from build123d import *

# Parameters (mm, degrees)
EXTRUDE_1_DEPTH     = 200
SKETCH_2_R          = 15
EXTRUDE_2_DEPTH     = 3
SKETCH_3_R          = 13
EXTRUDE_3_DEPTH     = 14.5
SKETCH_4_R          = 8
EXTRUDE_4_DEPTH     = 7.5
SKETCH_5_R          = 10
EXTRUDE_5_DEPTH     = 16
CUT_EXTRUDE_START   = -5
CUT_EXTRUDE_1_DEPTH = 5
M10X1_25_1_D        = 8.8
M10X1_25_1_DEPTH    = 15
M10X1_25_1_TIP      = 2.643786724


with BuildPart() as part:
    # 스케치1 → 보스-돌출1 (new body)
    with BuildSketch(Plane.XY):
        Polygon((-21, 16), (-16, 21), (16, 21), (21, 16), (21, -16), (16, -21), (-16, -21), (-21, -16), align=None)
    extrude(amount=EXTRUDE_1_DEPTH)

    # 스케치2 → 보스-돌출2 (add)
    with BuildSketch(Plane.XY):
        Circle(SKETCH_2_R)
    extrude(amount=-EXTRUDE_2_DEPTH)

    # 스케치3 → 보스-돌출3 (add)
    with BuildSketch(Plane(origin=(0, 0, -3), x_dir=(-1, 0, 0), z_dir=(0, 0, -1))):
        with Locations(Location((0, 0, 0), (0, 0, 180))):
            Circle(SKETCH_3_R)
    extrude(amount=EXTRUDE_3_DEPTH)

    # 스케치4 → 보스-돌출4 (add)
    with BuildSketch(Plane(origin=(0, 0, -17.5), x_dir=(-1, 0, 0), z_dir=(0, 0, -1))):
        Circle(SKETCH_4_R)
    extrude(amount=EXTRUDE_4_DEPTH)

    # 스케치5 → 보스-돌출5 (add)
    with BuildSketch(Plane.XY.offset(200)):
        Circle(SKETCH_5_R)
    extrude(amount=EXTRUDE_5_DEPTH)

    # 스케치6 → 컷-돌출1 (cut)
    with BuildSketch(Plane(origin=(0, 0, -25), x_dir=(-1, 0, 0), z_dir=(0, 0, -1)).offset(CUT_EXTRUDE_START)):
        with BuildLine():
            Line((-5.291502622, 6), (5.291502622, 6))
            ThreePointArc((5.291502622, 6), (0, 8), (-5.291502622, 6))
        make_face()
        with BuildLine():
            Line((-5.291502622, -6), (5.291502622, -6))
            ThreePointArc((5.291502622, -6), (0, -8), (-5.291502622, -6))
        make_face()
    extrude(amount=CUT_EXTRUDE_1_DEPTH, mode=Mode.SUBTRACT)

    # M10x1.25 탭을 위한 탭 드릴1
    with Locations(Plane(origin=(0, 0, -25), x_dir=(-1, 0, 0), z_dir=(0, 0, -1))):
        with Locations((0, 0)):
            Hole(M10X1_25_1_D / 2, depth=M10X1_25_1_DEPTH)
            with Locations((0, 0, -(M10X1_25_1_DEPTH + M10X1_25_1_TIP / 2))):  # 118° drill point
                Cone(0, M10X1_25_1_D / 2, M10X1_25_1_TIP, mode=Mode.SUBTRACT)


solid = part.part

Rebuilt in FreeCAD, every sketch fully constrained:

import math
import FreeCAD as App
import Part
import Sketcher
from FreeCAD import Vector


def add_polygon(sketch, points):
    """Adds a closed chain of lines whose ends are joined by coincident constraints."""
    first, n = sketch.GeometryCount, len(points)
    for a, b in zip(points, points[1:] + points[:1]):
        sketch.addGeometry(Part.LineSegment(App.Vector(*a, 0), App.Vector(*b, 0)), False)
    for i in range(n):
        sketch.addConstraint(Sketcher.Constraint("Coincident", first + i, 2, first + (i + 1) % n, 1))

doc = App.newDocument("Part")
body = doc.addObject("PartDesign::Body", "Body")

# Sketch on XY plane
sketch1 = body.newObject("Sketcher::SketchObject", "Sketch")
sketch1.AttachmentSupport = (doc.getObject("XY_Plane"), [""])
sketch1.MapMode = "FlatFace"
add_polygon(sketch1, [(-16, 21), (-21, 16), (-21, -16), (-16, -21), (16, -21), (21, -16), (21, 16), (16, 21)])  # lines 0-7
sketch1.addConstraint([
    Sketcher.Constraint("Vertical", 1),
    Sketcher.Constraint("Horizontal", 3),
    Sketcher.Constraint("Vertical", 5),
    Sketcher.Constraint("Horizontal", 7),
    Sketcher.Constraint("Symmetric", 0, 2, 4, 2, -1, 1),
    Sketcher.Constraint("Symmetric", 2, 2, 6, 2, -1, 1),
    Sketcher.Constraint("Perpendicular", 0, 2),
    Sketcher.Constraint("Perpendicular", 2, 4),
    Sketcher.Constraint("Perpendicular", 4, 6),
    Sketcher.Constraint("Horizontal", 1, 2, 4, 2),
    Sketcher.Constraint("Vertical", 3, 2, 6, 2),
    Sketcher.Constraint("Equal", 7, 1),
    Sketcher.Constraint("DistanceX", 3, 1, 3, 2, 32.0),
    Sketcher.Constraint("DistanceX", 0, 2, -1, 1, 21.0),
])
pad1 = body.newObject("PartDesign::Pad", "Pad")
pad1.Profile = sketch1
pad1.Length = 200

# Sketch on XY plane
sketch2 = body.newObject("Sketcher::SketchObject", "Sketch001")
sketch2.AttachmentSupport = (doc.getObject("XY_Plane"), [""])
sketch2.MapMode = "FlatFace"
sketch2.addGeometry(Part.Circle(Vector(0, 0, 0), Vector(0, 0, 1), 15), False)
sketch2.addConstraint([
    Sketcher.Constraint("Coincident", 0, 3, -1, 1),
    Sketcher.Constraint("Diameter", 0, 30.0),
])
pad2 = body.newObject("PartDesign::Pad", "Pad001")
pad2.Profile = sketch2
pad2.Length = 3
pad2.Reversed = True

# Sketch on XY plane
sketch3 = body.newObject("Sketcher::SketchObject", "Sketch002")
sketch3.AttachmentSupport = (doc.getObject("XY_Plane"), [""])
sketch3.MapMode = "FlatFace"
sketch3.AttachmentOffset = App.Placement(Vector(0, 0, -3), App.Rotation())
sketch3.addGeometry(Part.Circle(Vector(0, 0, 0), Vector(0, 0, 1), 13), False)
sketch3.addConstraint([
    Sketcher.Constraint("Coincident", 0, 3, -1, 1),
    Sketcher.Constraint("Diameter", 0, 26.0),
])
pad3 = body.newObject("PartDesign::Pad", "Pad002")
pad3.Profile = sketch3
pad3.Length = 14.5
pad3.Reversed = True

# Sketch on XY plane
sketch4 = body.newObject("Sketcher::SketchObject", "Sketch003")
sketch4.AttachmentSupport = (doc.getObject("XY_Plane"), [""])
sketch4.MapMode = "FlatFace"
sketch4.AttachmentOffset = App.Placement(Vector(0, 0, -17.5), App.Rotation())
sketch4.addGeometry(Part.Circle(Vector(0, 0, 0), Vector(0, 0, 1), 8), False)
sketch4.addConstraint([
    Sketcher.Constraint("Coincident", 0, 3, -1, 1),
    Sketcher.Constraint("Diameter", 0, 16.0),
])
pad4 = body.newObject("PartDesign::Pad", "Pad003")
pad4.Profile = sketch4
pad4.Length = 7.5
pad4.Reversed = True

# Sketch on XY plane
sketch5 = body.newObject("Sketcher::SketchObject", "Sketch004")
sketch5.AttachmentSupport = (doc.getObject("XY_Plane"), [""])
sketch5.MapMode = "FlatFace"
sketch5.AttachmentOffset = App.Placement(Vector(0, 0, 200), App.Rotation())
sketch5.addGeometry(Part.Circle(Vector(0, 0, 0), Vector(0, 0, 1), 10), False)
sketch5.addConstraint([
    Sketcher.Constraint("Coincident", 0, 3, -1, 1),
    Sketcher.Constraint("Diameter", 0, 20.0),
])
pad5 = body.newObject("PartDesign::Pad", "Pad004")
pad5.Profile = sketch5
pad5.Length = 16

# Sketch on XY plane
sketch6 = body.newObject("Sketcher::SketchObject", "Sketch005")
sketch6.AttachmentSupport = (doc.getObject("XY_Plane"), [""])
sketch6.MapMode = "FlatFace"
sketch6.AttachmentOffset = App.Placement(Vector(0, 0, -20), App.Rotation())
sketch6.addGeometry([
    Part.LineSegment(Vector(5, 6, 0), Vector(-5, 6, 0)),
    Part.ArcOfCircle(Part.Circle(Vector(0, 0, 0), Vector(0, 0, 1), 8), math.radians(49), math.radians(131)),
    Part.LineSegment(Vector(-5, -6, 0), Vector(5, -6, 0)),
    Part.ArcOfCircle(Part.Circle(Vector(0, 0, 0), Vector(0, 0, 1), 8), math.radians(-131), math.radians(-49)),
], False)
sketch6.addConstraint([
    Sketcher.Constraint("Coincident", 0, 1, 1, 1),
    Sketcher.Constraint("Coincident", 1, 2, 0, 2),
    Sketcher.Constraint("Coincident", 2, 1, 3, 1),
    Sketcher.Constraint("Coincident", 3, 2, 2, 2),
    Sketcher.Constraint("Horizontal", 0),
    Sketcher.Constraint("Horizontal", 2),
    Sketcher.Constraint("Coincident", 1, 3, -1, 1),
    Sketcher.Constraint("Coincident", 3, 3, -1, 1),
    Sketcher.Constraint("Equal", 1, 3),
    Sketcher.Constraint("Vertical", 1, 2, 2, 1),
    Sketcher.Constraint("Radius", 1, 8.0),
    Sketcher.Constraint("DistanceY", -1, 1, 0, 1, 6.0),
])
pocket1 = body.newObject("PartDesign::Pocket", "Pocket")
pocket1.Profile = sketch6
pocket1.Length = 5

# Sketch on XY plane
sketch7 = body.newObject("Sketcher::SketchObject", "Sketch006")
sketch7.AttachmentSupport = (doc.getObject("XY_Plane"), [""])
sketch7.MapMode = "FlatFace"
sketch7.AttachmentOffset = App.Placement(Vector(0, 0, -25), App.Rotation())
sketch7.addGeometry(Part.Circle(Vector(0, 0, 0), Vector(0, 0, 1), 4.4), False)
sketch7.addConstraint([
    Sketcher.Constraint("Coincident", 0, 3, -1, 1),
    Sketcher.Constraint("Diameter", 0, 8.8),
])
doc.recompute()
hole = body.newObject("PartDesign::Hole", "Hole")
hole.Profile = sketch7
hole.ThreadType = "None"
hole.Diameter = 8.8
hole.DepthType = "Dimension"
hole.Depth = 15
hole.DrillPoint = "Angled"
hole.DrillPointAngle = 118
hole.Reversed = True

doc.recompute()
